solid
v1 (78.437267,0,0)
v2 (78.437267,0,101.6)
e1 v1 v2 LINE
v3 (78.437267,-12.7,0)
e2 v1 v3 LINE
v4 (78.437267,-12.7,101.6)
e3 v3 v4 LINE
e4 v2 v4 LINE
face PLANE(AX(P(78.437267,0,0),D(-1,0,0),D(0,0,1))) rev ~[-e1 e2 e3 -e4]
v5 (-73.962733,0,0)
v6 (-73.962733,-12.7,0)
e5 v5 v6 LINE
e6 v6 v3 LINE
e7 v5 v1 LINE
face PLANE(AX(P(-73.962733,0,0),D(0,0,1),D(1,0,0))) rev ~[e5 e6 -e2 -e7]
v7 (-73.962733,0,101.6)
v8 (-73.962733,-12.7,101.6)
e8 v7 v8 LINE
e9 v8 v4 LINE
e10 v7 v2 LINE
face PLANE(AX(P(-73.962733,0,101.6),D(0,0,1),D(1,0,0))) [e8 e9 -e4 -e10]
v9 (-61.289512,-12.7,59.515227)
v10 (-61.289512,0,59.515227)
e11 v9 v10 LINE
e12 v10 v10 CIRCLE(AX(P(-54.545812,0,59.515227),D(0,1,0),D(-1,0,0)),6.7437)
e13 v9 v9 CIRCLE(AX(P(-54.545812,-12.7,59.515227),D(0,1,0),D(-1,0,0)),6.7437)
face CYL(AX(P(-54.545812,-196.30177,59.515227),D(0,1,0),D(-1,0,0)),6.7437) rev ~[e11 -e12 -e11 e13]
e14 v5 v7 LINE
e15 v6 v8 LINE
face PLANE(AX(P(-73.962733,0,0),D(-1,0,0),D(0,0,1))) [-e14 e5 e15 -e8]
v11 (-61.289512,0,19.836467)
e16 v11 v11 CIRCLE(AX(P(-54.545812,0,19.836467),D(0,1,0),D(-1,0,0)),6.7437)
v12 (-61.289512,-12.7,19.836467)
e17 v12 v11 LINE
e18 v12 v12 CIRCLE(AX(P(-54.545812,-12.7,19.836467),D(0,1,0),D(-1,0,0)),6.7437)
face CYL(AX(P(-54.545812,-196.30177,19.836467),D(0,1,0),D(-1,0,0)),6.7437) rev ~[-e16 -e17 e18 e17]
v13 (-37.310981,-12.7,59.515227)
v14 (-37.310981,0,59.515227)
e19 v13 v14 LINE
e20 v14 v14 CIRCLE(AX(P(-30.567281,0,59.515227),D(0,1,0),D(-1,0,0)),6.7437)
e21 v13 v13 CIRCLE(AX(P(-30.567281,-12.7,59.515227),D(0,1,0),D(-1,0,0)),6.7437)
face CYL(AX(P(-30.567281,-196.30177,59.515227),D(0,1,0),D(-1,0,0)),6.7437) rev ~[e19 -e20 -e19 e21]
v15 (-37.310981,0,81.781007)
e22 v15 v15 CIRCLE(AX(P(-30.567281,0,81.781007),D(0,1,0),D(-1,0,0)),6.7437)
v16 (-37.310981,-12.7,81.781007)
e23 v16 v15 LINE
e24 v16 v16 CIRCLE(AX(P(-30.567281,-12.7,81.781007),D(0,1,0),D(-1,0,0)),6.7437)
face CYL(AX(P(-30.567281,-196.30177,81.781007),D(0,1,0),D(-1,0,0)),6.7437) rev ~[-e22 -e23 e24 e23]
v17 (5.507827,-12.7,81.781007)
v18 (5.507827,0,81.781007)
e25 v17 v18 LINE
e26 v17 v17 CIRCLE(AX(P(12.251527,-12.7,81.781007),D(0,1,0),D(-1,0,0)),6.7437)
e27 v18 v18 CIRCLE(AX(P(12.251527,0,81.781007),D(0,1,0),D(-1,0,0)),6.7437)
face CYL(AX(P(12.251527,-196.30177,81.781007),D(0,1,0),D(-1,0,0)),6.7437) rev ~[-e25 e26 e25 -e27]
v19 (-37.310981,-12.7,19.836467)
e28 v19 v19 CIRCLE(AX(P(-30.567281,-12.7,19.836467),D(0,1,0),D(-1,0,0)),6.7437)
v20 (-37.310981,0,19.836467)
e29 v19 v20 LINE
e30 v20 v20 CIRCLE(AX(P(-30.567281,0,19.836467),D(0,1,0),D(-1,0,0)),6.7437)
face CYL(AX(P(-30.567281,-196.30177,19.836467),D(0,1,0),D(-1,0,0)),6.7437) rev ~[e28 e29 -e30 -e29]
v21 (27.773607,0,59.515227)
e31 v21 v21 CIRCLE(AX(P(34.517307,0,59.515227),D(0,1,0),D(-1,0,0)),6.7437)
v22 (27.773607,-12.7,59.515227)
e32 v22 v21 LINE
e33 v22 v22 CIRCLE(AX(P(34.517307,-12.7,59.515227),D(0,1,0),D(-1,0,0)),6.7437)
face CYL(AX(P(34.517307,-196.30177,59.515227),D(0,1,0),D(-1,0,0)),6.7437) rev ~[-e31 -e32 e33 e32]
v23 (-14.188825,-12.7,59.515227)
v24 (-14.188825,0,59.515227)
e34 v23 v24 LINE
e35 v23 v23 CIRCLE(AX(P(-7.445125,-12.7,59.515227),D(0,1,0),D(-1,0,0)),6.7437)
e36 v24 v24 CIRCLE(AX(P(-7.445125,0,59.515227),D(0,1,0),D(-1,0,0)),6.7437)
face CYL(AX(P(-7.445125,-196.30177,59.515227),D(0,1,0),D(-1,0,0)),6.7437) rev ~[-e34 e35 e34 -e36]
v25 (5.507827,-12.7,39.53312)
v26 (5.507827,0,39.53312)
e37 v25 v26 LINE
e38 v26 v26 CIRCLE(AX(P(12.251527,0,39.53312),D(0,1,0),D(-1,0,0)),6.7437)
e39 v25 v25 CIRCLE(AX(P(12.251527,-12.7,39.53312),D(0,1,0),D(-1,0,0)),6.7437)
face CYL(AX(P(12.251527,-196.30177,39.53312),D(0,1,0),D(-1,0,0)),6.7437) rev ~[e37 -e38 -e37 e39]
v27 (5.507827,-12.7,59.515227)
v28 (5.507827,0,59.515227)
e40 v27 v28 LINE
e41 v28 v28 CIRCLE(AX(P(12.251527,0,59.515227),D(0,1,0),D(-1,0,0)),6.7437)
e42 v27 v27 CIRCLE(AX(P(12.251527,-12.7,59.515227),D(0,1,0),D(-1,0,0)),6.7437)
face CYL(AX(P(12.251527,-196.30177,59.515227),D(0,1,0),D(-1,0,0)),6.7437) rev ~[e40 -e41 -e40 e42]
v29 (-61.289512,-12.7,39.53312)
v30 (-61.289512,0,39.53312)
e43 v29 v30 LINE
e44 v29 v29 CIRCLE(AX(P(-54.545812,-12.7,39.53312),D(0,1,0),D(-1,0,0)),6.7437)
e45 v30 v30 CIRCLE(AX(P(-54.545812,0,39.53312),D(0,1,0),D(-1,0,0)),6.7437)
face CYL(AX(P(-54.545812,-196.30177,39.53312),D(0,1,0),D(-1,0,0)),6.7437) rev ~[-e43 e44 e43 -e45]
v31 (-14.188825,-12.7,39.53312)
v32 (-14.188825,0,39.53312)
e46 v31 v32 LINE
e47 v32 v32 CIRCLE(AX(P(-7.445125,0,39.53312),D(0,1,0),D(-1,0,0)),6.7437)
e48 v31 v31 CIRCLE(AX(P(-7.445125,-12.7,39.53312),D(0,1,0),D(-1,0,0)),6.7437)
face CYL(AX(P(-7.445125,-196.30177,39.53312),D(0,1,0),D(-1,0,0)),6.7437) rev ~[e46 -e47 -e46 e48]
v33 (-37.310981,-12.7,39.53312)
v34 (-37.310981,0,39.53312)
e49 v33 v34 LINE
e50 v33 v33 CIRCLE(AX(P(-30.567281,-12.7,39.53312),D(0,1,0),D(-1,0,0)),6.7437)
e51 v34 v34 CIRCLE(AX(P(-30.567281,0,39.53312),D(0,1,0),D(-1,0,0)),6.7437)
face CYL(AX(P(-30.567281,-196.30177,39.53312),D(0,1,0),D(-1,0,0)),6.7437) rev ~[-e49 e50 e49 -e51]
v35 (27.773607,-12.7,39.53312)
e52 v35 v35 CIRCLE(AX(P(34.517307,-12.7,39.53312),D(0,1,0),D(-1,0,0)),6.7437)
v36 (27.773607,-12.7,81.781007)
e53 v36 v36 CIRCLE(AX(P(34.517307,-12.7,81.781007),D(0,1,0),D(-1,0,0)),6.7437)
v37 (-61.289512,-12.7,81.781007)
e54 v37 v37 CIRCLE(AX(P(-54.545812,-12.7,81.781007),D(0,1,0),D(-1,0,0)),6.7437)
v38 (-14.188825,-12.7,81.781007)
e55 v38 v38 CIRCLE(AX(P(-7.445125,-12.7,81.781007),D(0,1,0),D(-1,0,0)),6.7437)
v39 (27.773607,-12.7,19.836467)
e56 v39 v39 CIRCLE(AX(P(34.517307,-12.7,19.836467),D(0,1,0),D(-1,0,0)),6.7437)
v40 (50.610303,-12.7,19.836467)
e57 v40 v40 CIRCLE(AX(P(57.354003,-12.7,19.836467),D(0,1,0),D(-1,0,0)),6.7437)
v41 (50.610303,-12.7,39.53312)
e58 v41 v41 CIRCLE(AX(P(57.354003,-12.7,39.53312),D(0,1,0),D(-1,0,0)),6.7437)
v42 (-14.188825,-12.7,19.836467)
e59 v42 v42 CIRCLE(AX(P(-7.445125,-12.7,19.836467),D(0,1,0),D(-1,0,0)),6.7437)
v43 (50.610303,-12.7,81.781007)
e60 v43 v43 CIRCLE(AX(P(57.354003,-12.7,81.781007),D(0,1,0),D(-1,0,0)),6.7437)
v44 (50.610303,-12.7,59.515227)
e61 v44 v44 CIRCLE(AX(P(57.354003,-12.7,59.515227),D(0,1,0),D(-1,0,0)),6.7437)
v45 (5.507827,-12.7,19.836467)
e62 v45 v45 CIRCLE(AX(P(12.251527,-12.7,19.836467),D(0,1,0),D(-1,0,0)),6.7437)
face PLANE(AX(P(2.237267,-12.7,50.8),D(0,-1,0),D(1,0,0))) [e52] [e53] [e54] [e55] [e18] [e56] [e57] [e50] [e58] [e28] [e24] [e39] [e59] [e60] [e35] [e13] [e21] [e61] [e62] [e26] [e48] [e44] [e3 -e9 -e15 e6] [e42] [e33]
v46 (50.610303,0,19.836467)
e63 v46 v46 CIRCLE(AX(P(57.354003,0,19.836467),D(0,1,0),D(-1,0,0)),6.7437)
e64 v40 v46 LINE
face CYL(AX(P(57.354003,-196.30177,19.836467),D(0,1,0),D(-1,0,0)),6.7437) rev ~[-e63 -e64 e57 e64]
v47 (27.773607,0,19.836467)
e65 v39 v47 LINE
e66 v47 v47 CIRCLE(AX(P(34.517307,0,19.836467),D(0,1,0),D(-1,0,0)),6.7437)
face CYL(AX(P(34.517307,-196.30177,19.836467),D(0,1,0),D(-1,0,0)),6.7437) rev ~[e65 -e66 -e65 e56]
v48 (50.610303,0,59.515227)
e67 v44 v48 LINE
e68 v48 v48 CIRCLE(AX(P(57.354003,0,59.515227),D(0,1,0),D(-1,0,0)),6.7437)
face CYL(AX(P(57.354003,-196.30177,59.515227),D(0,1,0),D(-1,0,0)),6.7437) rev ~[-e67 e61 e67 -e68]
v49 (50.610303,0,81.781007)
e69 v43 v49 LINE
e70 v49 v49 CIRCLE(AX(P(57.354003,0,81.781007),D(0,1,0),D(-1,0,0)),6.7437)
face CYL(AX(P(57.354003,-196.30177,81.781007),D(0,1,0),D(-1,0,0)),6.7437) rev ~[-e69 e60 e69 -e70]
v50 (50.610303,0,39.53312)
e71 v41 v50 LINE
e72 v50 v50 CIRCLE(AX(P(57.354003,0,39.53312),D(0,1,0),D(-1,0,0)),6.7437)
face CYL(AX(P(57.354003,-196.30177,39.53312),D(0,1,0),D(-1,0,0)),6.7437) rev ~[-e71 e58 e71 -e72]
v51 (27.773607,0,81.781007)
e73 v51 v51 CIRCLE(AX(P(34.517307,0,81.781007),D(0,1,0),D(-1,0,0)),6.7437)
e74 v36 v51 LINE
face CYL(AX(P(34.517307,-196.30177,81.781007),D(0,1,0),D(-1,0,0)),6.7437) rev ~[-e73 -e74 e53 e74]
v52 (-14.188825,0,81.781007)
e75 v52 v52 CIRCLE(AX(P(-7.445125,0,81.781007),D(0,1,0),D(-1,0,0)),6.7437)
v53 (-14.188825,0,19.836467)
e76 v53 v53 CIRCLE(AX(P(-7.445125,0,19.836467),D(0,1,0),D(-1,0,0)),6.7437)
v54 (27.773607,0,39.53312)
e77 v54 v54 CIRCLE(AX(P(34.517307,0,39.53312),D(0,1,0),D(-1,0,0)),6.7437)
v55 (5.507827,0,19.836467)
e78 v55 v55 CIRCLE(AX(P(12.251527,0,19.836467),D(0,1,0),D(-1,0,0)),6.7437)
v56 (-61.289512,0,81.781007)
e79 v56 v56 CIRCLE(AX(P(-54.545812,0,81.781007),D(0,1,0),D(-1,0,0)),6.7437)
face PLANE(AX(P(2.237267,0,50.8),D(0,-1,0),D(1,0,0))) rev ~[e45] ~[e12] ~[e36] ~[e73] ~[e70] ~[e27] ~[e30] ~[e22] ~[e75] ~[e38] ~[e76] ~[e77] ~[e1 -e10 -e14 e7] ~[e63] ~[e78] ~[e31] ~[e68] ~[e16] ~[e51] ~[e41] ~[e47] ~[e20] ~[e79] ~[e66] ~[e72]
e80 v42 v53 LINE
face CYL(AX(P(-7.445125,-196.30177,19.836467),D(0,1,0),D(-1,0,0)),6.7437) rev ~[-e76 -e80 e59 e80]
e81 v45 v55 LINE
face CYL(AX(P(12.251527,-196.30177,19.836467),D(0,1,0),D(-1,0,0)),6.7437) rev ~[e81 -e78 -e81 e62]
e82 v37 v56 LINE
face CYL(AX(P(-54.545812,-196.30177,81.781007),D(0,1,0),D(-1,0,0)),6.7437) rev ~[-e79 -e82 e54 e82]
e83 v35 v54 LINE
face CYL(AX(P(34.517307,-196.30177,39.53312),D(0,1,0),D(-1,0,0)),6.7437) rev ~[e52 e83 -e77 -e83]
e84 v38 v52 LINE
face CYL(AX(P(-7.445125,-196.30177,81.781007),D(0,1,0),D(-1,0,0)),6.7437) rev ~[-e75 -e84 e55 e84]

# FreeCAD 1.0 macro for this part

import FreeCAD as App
import Part
import Sketcher
Q = App.Units.Quantity


def add_polygon(sketch, points):
    """Adds a closed chain of lines whose ends are joined by coincident constraints."""
    first, n = sketch.GeometryCount, len(points)
    for a, b in zip(points, points[1:] + points[:1]):
        sketch.addGeometry(Part.LineSegment(App.Vector(*a, 0), App.Vector(*b, 0)), False)
    for i in range(n):
        sketch.addConstraint(Sketcher.Constraint("Coincident", first + i, 2, first + (i + 1) % n, 1))

doc = App.newDocument("Part")
body = doc.addObject("PartDesign::Body", "Body")

# Sketch on XZ plane
sketch1 = doc.addObject("Sketcher::SketchObject", "Sketch")
body.addObject(sketch1)
sketch1.AttachmentSupport = (doc.XZ_Plane, [""])
sketch1.MapMode = "FlatFace"
add_polygon(sketch1, [(-74, 102), (-74, 0), (78, 0), (78, 102)])  # lines 0-3
sketch1.addConstraint(Sketcher.Constraint("Vertical", 0))
sketch1.addConstraint(Sketcher.Constraint("Horizontal", 1))
sketch1.addConstraint(Sketcher.Constraint("Vertical", 2))
sketch1.addConstraint(Sketcher.Constraint("Horizontal", 3))
sketch1.addConstraint(Sketcher.Constraint("PointOnObject", 0, 2, -1))
sketch1.addConstraint(Sketcher.Constraint("DistanceX", 1, 1, 1, 2, Q("6 in")))
sketch1.addConstraint(Sketcher.Constraint("DistanceY", 0, 2, 0, 1, Q("4 in")))
sketch1.addConstraint(Sketcher.Constraint("DistanceX", 0, 2, -1, 1, 73.962733))
pad1 = doc.addObject("PartDesign::Pad", "Pad")
body.addObject(pad1)
pad1.Profile = sketch1
pad1.Length = Q("0.5 in")

# Sketch on XZ plane
sketch2 = doc.addObject("Sketcher::SketchObject", "Sketch001")
body.addObject(sketch2)
sketch2.AttachmentSupport = (doc.XZ_Plane, [""])
sketch2.MapMode = "FlatFace"
sketch2.AttachmentOffset = App.Placement(App.Vector(0, 0, 0.5 * 25.4), App.Rotation())
sketch2.addGeometry(Part.Circle(App.Vector(-55, 82, 0), App.Vector(0, 0, 1), 7), False)
sketch2.addGeometry(Part.Circle(App.Vector(-55, 60, 0), App.Vector(0, 0, 1), 7), False)
sketch2.addGeometry(Part.Circle(App.Vector(-55, 40, 0), App.Vector(0, 0, 1), 7), False)
sketch2.addGeometry(Part.Circle(App.Vector(-7, 82, 0), App.Vector(0, 0, 1), 7), False)
sketch2.addGeometry(Part.Circle(App.Vector(-7, 60, 0), App.Vector(0, 0, 1), 7), False)
sketch2.addGeometry(Part.Circle(App.Vector(-7, 40, 0), App.Vector(0, 0, 1), 7), False)
sketch2.addGeometry(Part.Circle(App.Vector(-7, 20, 0), App.Vector(0, 0, 1), 7), False)
sketch2.addGeometry(Part.Circle(App.Vector(-31, 82, 0), App.Vector(0, 0, 1), 7), False)
sketch2.addGeometry(Part.Circle(App.Vector(-31, 60, 0), App.Vector(0, 0, 1), 7), False)
sketch2.addGeometry(Part.Circle(App.Vector(-31, 40, 0), App.Vector(0, 0, 1), 7), False)
sketch2.addGeometry(Part.Circle(App.Vector(-31, 20, 0), App.Vector(0, 0, 1), 7), False)
sketch2.addGeometry(Part.Circle(App.Vector(-55, 20, 0), App.Vector(0, 0, 1), 7), False)
sketch2.addGeometry(Part.Circle(App.Vector(12, 82, 0), App.Vector(0, 0, 1), 7), False)
sketch2.addGeometry(Part.Circle(App.Vector(12, 60, 0), App.Vector(0, 0, 1), 7), False)
sketch2.addGeometry(Part.Circle(App.Vector(12, 40, 0), App.Vector(0, 0, 1), 7), False)
sketch2.addGeometry(Part.Circle(App.Vector(12, 20, 0), App.Vector(0, 0, 1), 7), False)
sketch2.addGeometry(Part.Circle(App.Vector(35, 20, 0), App.Vector(0, 0, 1), 7), False)
sketch2.addGeometry(Part.Circle(App.Vector(35, 40, 0), App.Vector(0, 0, 1), 7), False)
sketch2.addGeometry(Part.Circle(App.Vector(35, 60, 0), App.Vector(0, 0, 1), 7), False)
sketch2.addGeometry(Part.Circle(App.Vector(35, 82, 0), App.Vector(0, 0, 1), 7), False)
sketch2.addGeometry(Part.Circle(App.Vector(57, 82, 0), App.Vector(0, 0, 1), 7), False)
sketch2.addGeometry(Part.Circle(App.Vector(57, 60, 0), App.Vector(0, 0, 1), 7), False)
sketch2.addGeometry(Part.Circle(App.Vector(57, 40, 0), App.Vector(0, 0, 1), 7), False)
sketch2.addGeometry(Part.Circle(App.Vector(57, 20, 0), App.Vector(0, 0, 1), 7), False)
sketch2.addConstraint(Sketcher.Constraint("Equal", 0, 1))
sketch2.addConstraint(Sketcher.Constraint("Equal", 1, 2))
sketch2.addConstraint(Sketcher.Constraint("Equal", 2, 3))
sketch2.addConstraint(Sketcher.Constraint("Equal", 3, 4))
sketch2.addConstraint(Sketcher.Constraint("Equal", 4, 5))
sketch2.addConstraint(Sketcher.Constraint("Equal", 5, 6))
sketch2.addConstraint(Sketcher.Constraint("Equal", 6, 7))
sketch2.addConstraint(Sketcher.Constraint("Equal", 7, 8))
sketch2.addConstraint(Sketcher.Constraint("Equal", 8, 9))
sketch2.addConstraint(Sketcher.Constraint("Equal", 9, 10))
sketch2.addConstraint(Sketcher.Constraint("Equal", 10, 11))
sketch2.addConstraint(Sketcher.Constraint("Equal", 11, 12))
sketch2.addConstraint(Sketcher.Constraint("Equal", 12, 13))
sketch2.addConstraint(Sketcher.Constraint("Equal", 13, 14))
sketch2.addConstraint(Sketcher.Constraint("Equal", 14, 15))
sketch2.addConstraint(Sketcher.Constraint("Equal", 15, 16))
sketch2.addConstraint(Sketcher.Constraint("Equal", 16, 17))
sketch2.addConstraint(Sketcher.Constraint("Equal", 17, 18))
sketch2.addConstraint(Sketcher.Constraint("Equal", 18, 19))
sketch2.addConstraint(Sketcher.Constraint("Equal", 19, 20))
sketch2.addConstraint(Sketcher.Constraint("Equal", 20, 21))
sketch2.addConstraint(Sketcher.Constraint("Equal", 21, 22))
sketch2.addConstraint(Sketcher.Constraint("Equal", 22, 23))
sketch2.addConstraint(Sketcher.Constraint("Horizontal", 0, 3, 3, 3))
sketch2.addConstraint(Sketcher.Constraint("Horizontal", 1, 3, 4, 3))
sketch2.addConstraint(Sketcher.Constraint("Horizontal", 2, 3, 5, 3))
sketch2.addConstraint(Sketcher.Constraint("Horizontal", 3, 3, 7, 3))
sketch2.addConstraint(Sketcher.Constraint("Horizontal", 4, 3, 8, 3))
sketch2.addConstraint(Sketcher.Constraint("Horizontal", 5, 3, 9, 3))
sketch2.addConstraint(Sketcher.Constraint("Horizontal", 6, 3, 10, 3))
sketch2.addConstraint(Sketcher.Constraint("Horizontal", 10, 3, 11, 3))
sketch2.addConstraint(Sketcher.Constraint("Horizontal", 7, 3, 12, 3))
sketch2.addConstraint(Sketcher.Constraint("Horizontal", 8, 3, 13, 3))
sketch2.addConstraint(Sketcher.Constraint("Horizontal", 9, 3, 14, 3))
sketch2.addConstraint(Sketcher.Constraint("Horizontal", 11, 3, 15, 3))
sketch2.addConstraint(Sketcher.Constraint("Horizontal", 15, 3, 16, 3))
sketch2.addConstraint(Sketcher.Constraint("Horizontal", 14, 3, 17, 3))
sketch2.addConstraint(Sketcher.Constraint("Horizontal", 13, 3, 18, 3))
sketch2.addConstraint(Sketcher.Constraint("Horizontal", 12, 3, 19, 3))
sketch2.addConstraint(Sketcher.Constraint("Horizontal", 19, 3, 20, 3))
sketch2.addConstraint(Sketcher.Constraint("Horizontal", 18, 3, 21, 3))
sketch2.addConstraint(Sketcher.Constraint("Horizontal", 17, 3, 22, 3))
sketch2.addConstraint(Sketcher.Constraint("Horizontal", 16, 3, 23, 3))
sketch2.addConstraint(Sketcher.Constraint("Vertical", 0, 3, 1, 3))
sketch2.addConstraint(Sketcher.Constraint("Vertical", 1, 3, 2, 3))
sketch2.addConstraint(Sketcher.Constraint("Vertical", 3, 3, 4, 3))
sketch2.addConstraint(Sketcher.Constraint("Vertical", 4, 3, 5, 3))
sketch2.addConstraint(Sketcher.Constraint("Vertical", 5, 3, 6, 3))
sketch2.addConstraint(Sketcher.Constraint("Vertical", 7, 3, 8, 3))
sketch2.addConstraint(Sketcher.Constraint("Vertical", 8, 3, 9, 3))
sketch2.addConstraint(Sketcher.Constraint("Vertical", 9, 3, 10, 3))
sketch2.addConstraint(Sketcher.Constraint("Vertical", 2, 3, 11, 3))
sketch2.addConstraint(Sketcher.Constraint("Vertical", 12, 3, 13, 3))
sketch2.addConstraint(Sketcher.Constraint("Vertical", 13, 3, 14, 3))
sketch2.addConstraint(Sketcher.Constraint("Vertical", 14, 3, 15, 3))
sketch2.addConstraint(Sketcher.Constraint("Vertical", 16, 3, 17, 3))
sketch2.addConstraint(Sketcher.Constraint("Vertical", 17, 3, 18, 3))
sketch2.addConstraint(Sketcher.Constraint("Vertical", 18, 3, 19, 3))
sketch2.addConstraint(Sketcher.Constraint("Vertical", 20, 3, 21, 3))
sketch2.addConstraint(Sketcher.Constraint("Vertical", 21, 3, 22, 3))
sketch2.addConstraint(Sketcher.Constraint("Vertical", 22, 3, 23, 3))
sketch2.addConstraint(Sketcher.Constraint("Diameter", 0, Q("0.531 in")))
sketch2.addConstraint(Sketcher.Constraint("DistanceX", 0, 3, -1, 1, 54.545812))
sketch2.addConstraint(Sketcher.Constraint("DistanceY", -1, 1, 2, 3, 39.53312))
sketch2.addConstraint(Sketcher.Constraint("DistanceX", 7, 3, -1, 1, 30.567281))
sketch2.addConstraint(Sketcher.Constraint("DistanceY", 1, 3, 0, 3, 22.26578))
sketch2.addConstraint(Sketcher.Constraint("DistanceY", 6, 3, 4, 3, 39.67876))
sketch2.addConstraint(Sketcher.Constraint("DistanceX", 3, 3, 12, 3, 19.696652))
sketch2.addConstraint(Sketcher.Constraint("DistanceX", 7, 3, 12, 3, 42.818808))
sketch2.addConstraint(Sketcher.Constraint("DistanceX", 15, 3, 16, 3, 22.26578))
sketch2.addConstraint(Sketcher.Constraint("DistanceY", -1, 1, 0, 3, 81.781007))
sketch2.addConstraint(Sketcher.Constraint("DistanceX", -1, 1, 20, 3, 57.354003))
doc.recompute()
hole = doc.addObject("PartDesign::Hole", "Hole")
body.addObject(hole)
hole.Profile = sketch2
hole.ThreadType = "None"
hole.Diameter = Q("0.531 in")
hole.DepthType = "ThroughAll"

doc.recompute()
